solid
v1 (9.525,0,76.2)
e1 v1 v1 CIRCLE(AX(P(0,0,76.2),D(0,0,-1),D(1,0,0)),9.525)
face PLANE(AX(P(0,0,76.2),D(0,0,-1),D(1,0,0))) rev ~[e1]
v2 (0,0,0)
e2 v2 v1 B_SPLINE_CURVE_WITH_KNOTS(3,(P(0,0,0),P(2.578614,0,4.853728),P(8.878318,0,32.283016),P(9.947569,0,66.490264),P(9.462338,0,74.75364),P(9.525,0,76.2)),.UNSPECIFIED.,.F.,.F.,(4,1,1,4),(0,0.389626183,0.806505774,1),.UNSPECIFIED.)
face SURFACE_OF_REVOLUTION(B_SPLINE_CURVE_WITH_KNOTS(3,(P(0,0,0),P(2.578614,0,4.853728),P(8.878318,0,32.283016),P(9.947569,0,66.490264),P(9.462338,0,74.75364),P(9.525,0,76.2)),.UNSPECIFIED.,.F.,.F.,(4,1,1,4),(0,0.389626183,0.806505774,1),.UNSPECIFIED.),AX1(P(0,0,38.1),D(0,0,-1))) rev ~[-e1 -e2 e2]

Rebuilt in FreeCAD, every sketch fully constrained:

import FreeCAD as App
import Part
import Sketcher
from FreeCAD import Vector

doc = App.newDocument("Part")
body = doc.addObject("PartDesign::Body", "Body")

# Sketch on XZ plane
sketch1 = doc.addObject("Sketcher::SketchObject", "Sketch")
body.addObject(sketch1)
sketch1.AttachmentSupport = (doc.XZ_Plane, [""])
sketch1.MapMode = "FlatFace"
sketch1.addGeometry(Part.LineSegment(Vector(0, 76.2, 0), Vector(0, 0, 0)), False)
sketch1.addGeometry(Part.BSplineCurve([Vector(0, 0, 0), Vector(2.578614, 4.853728, 0), Vector(8.878318, 32.283016, 0), Vector(9.947569, 66.490264, 0), Vector(9.462338, 74.75364, 0), Vector(9.525, 76.2, 0)], [4, 1, 1, 4], [0, 0.389626183, 0.806505774, 1], False, 3, [1, 1, 1, 1, 1, 1], False), False)
sketch1.addGeometry(Part.LineSegment(Vector(9.525, 76.2, 0), Vector(0, 76.2, 0)), False)
sketch1.addConstraint(Sketcher.Constraint("Block", 1))
sketch1.addConstraint(Sketcher.Constraint("Coincident", 0, 2, 1, 1))
sketch1.addConstraint(Sketcher.Constraint("Coincident", 1, 2, 2, 1))
sketch1.addConstraint(Sketcher.Constraint("Coincident", 2, 2, 0, 1))
sketch1.addConstraint(Sketcher.Constraint("Vertical", 0))
sketch1.addConstraint(Sketcher.Constraint("Horizontal", 2))
revolution = doc.addObject("PartDesign::Revolution", "Revolution")
body.addObject(revolution)
revolution.Profile = sketch1
revolution.ReferenceAxis = (sketch1, ["V_Axis"])
revolution.Angle = 360

doc.recompute()
